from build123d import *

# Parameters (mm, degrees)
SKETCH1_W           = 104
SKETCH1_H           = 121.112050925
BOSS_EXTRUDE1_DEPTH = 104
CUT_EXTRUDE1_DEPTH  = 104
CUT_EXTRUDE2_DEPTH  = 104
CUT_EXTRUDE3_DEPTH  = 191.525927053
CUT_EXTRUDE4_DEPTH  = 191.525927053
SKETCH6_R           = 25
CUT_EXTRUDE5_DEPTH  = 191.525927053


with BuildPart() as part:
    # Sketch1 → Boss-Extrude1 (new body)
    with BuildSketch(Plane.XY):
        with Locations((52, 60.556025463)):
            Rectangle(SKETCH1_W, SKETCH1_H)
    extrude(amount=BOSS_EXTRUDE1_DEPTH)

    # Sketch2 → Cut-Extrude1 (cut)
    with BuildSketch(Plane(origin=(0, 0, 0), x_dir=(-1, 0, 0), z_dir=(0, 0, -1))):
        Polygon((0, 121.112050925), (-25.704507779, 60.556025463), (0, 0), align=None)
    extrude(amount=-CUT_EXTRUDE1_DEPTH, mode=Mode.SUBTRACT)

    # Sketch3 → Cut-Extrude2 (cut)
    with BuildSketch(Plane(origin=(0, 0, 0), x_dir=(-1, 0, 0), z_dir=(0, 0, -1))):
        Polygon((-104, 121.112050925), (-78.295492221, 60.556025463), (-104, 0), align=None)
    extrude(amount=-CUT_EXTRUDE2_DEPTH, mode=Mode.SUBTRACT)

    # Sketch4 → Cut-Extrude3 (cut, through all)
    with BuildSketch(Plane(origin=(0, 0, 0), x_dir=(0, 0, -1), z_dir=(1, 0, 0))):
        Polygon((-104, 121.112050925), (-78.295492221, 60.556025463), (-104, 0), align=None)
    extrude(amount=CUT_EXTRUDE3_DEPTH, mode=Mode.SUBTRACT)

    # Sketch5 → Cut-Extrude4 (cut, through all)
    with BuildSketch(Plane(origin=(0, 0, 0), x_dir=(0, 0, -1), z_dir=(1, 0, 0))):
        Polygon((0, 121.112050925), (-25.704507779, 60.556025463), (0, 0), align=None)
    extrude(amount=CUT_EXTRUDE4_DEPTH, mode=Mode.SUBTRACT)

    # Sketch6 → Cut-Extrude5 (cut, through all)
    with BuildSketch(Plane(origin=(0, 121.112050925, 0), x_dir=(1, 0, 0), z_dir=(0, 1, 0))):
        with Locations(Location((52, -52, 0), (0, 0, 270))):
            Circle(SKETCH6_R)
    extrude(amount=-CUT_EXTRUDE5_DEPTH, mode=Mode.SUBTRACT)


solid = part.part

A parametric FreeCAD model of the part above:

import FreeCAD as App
import Part
import Sketcher
Q = App.Units.Quantity

doc = App.newDocument("Part")
body = doc.addObject("PartDesign::Body", "Body")

sketch1 = body.newObject("Sketcher::SketchObject", "Sketch")
sketch1.AttachmentSupport = (doc.getObject("XY_Plane"), [""])
sketch1.MapMode = "FlatFace"
sketch1.addGeometry(Part.LineSegment(App.Vector(0, 121, 0), App.Vector(0, 0, 0)), False)
sketch1.addGeometry(Part.LineSegment(App.Vector(0, 0, 0), App.Vector(104, 0, 0)), False)
sketch1.addGeometry(Part.LineSegment(App.Vector(104, 0, 0), App.Vector(104, 121, 0)), False)
sketch1.addGeometry(Part.LineSegment(App.Vector(104, 121, 0), App.Vector(0, 121, 0)), False)
sketch1.addConstraint(Sketcher.Constraint("Coincident", 0, 2, 1, 1))
sketch1.addConstraint(Sketcher.Constraint("Coincident", 1, 2, 2, 1))
sketch1.addConstraint(Sketcher.Constraint("Coincident", 2, 2, 3, 1))
sketch1.addConstraint(Sketcher.Constraint("Coincident", 3, 2, 0, 1))
sketch1.addConstraint(Sketcher.Constraint("Vertical", 0))
sketch1.addConstraint(Sketcher.Constraint("Horizontal", 1))
sketch1.addConstraint(Sketcher.Constraint("Vertical", 2))
sketch1.addConstraint(Sketcher.Constraint("Horizontal", 3))
sketch1.addConstraint(Sketcher.Constraint("Coincident", 0, 2, -1, 1))
sketch1.addConstraint(Sketcher.Constraint("DistanceX", 1, 1, 1, 2, Q("104 mm")))
sketch1.addConstraint(Sketcher.Constraint("DistanceY", 0, 2, 0, 1, Q("121.112051 mm")))
pad1 = body.newObject("PartDesign::Pad", "Pad")
pad1.Profile = sketch1
pad1.Length = 104

sketch2 = body.newObject("Sketcher::SketchObject", "Sketch001")
sketch2.AttachmentSupport = (doc.getObject("XY_Plane"), [""])
sketch2.MapMode = "FlatFace"
sketch2.addGeometry(Part.LineSegment(App.Vector(0, 121, 0), App.Vector(26, 61, 0)), False)
sketch2.addGeometry(Part.LineSegment(App.Vector(26, 61, 0), App.Vector(0, 0, 0)), False)
sketch2.addGeometry(Part.LineSegment(App.Vector(0, 0, 0), App.Vector(0, 121, 0)), False)
sketch2.addConstraint(Sketcher.Constraint("Coincident", 0, 2, 1, 1))
sketch2.addConstraint(Sketcher.Constraint("Coincident", 1, 2, 2, 1))
sketch2.addConstraint(Sketcher.Constraint("Coincident", 2, 2, 0, 1))
sketch2.addConstraint(Sketcher.Constraint("Vertical", 2))
sketch2.addConstraint(Sketcher.Constraint("Coincident", 1, 2, -1, 1))
sketch2.addConstraint(Sketcher.Constraint("Equal", 0, 1))
sketch2.addConstraint(Sketcher.Constraint("Angle", 0, Q("-67 deg")))
sketch2.addConstraint(Sketcher.Constraint("DistanceY", 2, 1, 2, 2, Q("121.112051 mm")))
pocket1 = body.newObject("PartDesign::Pocket", "Pocket")
pocket1.Profile = sketch2
pocket1.Length = 104
pocket1.Reversed = True

sketch3 = body.newObject("Sketcher::SketchObject", "Sketch002")
sketch3.AttachmentSupport = (doc.getObject("XY_Plane"), [""])
sketch3.MapMode = "FlatFace"
sketch3.addGeometry(Part.LineSegment(App.Vector(78, 61, 0), App.Vector(104, 121, 0)), False)
sketch3.addGeometry(Part.LineSegment(App.Vector(104, 121, 0), App.Vector(104, 0, 0)), False)
sketch3.addGeometry(Part.LineSegment(App.Vector(104, 0, 0), App.Vector(78, 61, 0)), False)
sketch3.addConstraint(Sketcher.Constraint("Coincident", 0, 2, 1, 1))
sketch3.addConstraint(Sketcher.Constraint("Coincident", 1, 2, 2, 1))
sketch3.addConstraint(Sketcher.Constraint("Coincident", 2, 2, 0, 1))
sketch3.addConstraint(Sketcher.Constraint("Vertical", 1))
sketch3.addConstraint(Sketcher.Constraint("PointOnObject", 1, 2, -1))
sketch3.addConstraint(Sketcher.Constraint("Equal", 0, 2))
sketch3.addConstraint(Sketcher.Constraint("Angle", 0, Q("67 deg")))
sketch3.addConstraint(Sketcher.Constraint("DistanceX", -1, 1, 0, 2, Q("104 mm")))
sketch3.addConstraint(Sketcher.Constraint("DistanceY", 1, 2, 1, 1, Q("121.112051 mm")))
pocket2 = body.newObject("PartDesign::Pocket", "Pocket001")
pocket2.Profile = sketch3
pocket2.Length = 104
pocket2.Reversed = True

sketch4 = body.newObject("Sketcher::SketchObject", "Sketch003")
sketch4.AttachmentSupport = (doc.getObject("YZ_Plane"), [""])
sketch4.MapMode = "FlatFace"
sketch4.addGeometry(Part.LineSegment(App.Vector(61, 78, 0), App.Vector(121, 104, 0)), False)
sketch4.addGeometry(Part.LineSegment(App.Vector(121, 104, 0), App.Vector(0, 104, 0)), False)
sketch4.addGeometry(Part.LineSegment(App.Vector(0, 104, 0), App.Vector(61, 78, 0)), False)
sketch4.addConstraint(Sketcher.Constraint("Coincident", 0, 2, 1, 1))
sketch4.addConstraint(Sketcher.Constraint("Coincident", 1, 2, 2, 1))
sketch4.addConstraint(Sketcher.Constraint("Coincident", 2, 2, 0, 1))
sketch4.addConstraint(Sketcher.Constraint("Horizontal", 1))
sketch4.addConstraint(Sketcher.Constraint("PointOnObject", 1, 2, -2))
sketch4.addConstraint(Sketcher.Constraint("Equal", 0, 2))
sketch4.addConstraint(Sketcher.Constraint("Angle", 0, Q("23 deg")))
sketch4.addConstraint(Sketcher.Constraint("DistanceY", -1, 1, 0, 2, Q("104 mm")))
sketch4.addConstraint(Sketcher.Constraint("DistanceX", 1, 2, 1, 1, Q("121.112051 mm")))
pocket3 = body.newObject("PartDesign::Pocket", "Pocket002")
pocket3.Profile = sketch4
pocket3.Type = "ThroughAll"
pocket3.Reversed = True

sketch5 = body.newObject("Sketcher::SketchObject", "Sketch004")
sketch5.AttachmentSupport = (doc.getObject("YZ_Plane"), [""])
sketch5.MapMode = "FlatFace"
sketch5.addGeometry(Part.LineSegment(App.Vector(121, 0, 0), App.Vector(61, 26, 0)), False)
sketch5.addGeometry(Part.LineSegment(App.Vector(61, 26, 0), App.Vector(0, 0, 0)), False)
sketch5.addGeometry(Part.LineSegment(App.Vector(0, 0, 0), App.Vector(121, 0, 0)), False)
sketch5.addConstraint(Sketcher.Constraint("Coincident", 0, 2, 1, 1))
sketch5.addConstraint(Sketcher.Constraint("Coincident", 1, 2, 2, 1))
sketch5.addConstraint(Sketcher.Constraint("Coincident", 2, 2, 0, 1))
sketch5.addConstraint(Sketcher.Constraint("Horizontal", 2))
sketch5.addConstraint(Sketcher.Constraint("Coincident", 1, 2, -1, 1))
sketch5.addConstraint(Sketcher.Constraint("Equal", 0, 1))
sketch5.addConstraint(Sketcher.Constraint("Angle", 0, Q("157 deg")))
sketch5.addConstraint(Sketcher.Constraint("DistanceX", 2, 1, 2, 2, Q("121.112051 mm")))
pocket4 = body.newObject("PartDesign::Pocket", "Pocket003")
pocket4.Profile = sketch5
pocket4.Type = "ThroughAll"
pocket4.Reversed = True

sketch6 = body.newObject("Sketcher::SketchObject", "Sketch005")
sketch6.AttachmentSupport = (doc.getObject("XZ_Plane"), [""])
sketch6.MapMode = "FlatFace"
sketch6.AttachmentOffset = App.Placement(App.Vector(0, 0, -121.112051), App.Rotation())
sketch6.addGeometry(Part.Circle(App.Vector(52, 52, 0), App.Vector(0, 0, 1), 25), False)
sketch6.addConstraint(Sketcher.Constraint("Diameter", 0, Q("50 mm")))
sketch6.addConstraint(Sketcher.Constraint("DistanceX", -1, 1, 0, 3, Q("52 mm")))
sketch6.addConstraint(Sketcher.Constraint("DistanceY", -1, 1, 0, 3, Q("52 mm")))
pocket5 = body.newObject("PartDesign::Pocket", "Pocket004")
pocket5.Profile = sketch6
pocket5.Type = "ThroughAll"
pocket5.Reversed = True

doc.recompute()
